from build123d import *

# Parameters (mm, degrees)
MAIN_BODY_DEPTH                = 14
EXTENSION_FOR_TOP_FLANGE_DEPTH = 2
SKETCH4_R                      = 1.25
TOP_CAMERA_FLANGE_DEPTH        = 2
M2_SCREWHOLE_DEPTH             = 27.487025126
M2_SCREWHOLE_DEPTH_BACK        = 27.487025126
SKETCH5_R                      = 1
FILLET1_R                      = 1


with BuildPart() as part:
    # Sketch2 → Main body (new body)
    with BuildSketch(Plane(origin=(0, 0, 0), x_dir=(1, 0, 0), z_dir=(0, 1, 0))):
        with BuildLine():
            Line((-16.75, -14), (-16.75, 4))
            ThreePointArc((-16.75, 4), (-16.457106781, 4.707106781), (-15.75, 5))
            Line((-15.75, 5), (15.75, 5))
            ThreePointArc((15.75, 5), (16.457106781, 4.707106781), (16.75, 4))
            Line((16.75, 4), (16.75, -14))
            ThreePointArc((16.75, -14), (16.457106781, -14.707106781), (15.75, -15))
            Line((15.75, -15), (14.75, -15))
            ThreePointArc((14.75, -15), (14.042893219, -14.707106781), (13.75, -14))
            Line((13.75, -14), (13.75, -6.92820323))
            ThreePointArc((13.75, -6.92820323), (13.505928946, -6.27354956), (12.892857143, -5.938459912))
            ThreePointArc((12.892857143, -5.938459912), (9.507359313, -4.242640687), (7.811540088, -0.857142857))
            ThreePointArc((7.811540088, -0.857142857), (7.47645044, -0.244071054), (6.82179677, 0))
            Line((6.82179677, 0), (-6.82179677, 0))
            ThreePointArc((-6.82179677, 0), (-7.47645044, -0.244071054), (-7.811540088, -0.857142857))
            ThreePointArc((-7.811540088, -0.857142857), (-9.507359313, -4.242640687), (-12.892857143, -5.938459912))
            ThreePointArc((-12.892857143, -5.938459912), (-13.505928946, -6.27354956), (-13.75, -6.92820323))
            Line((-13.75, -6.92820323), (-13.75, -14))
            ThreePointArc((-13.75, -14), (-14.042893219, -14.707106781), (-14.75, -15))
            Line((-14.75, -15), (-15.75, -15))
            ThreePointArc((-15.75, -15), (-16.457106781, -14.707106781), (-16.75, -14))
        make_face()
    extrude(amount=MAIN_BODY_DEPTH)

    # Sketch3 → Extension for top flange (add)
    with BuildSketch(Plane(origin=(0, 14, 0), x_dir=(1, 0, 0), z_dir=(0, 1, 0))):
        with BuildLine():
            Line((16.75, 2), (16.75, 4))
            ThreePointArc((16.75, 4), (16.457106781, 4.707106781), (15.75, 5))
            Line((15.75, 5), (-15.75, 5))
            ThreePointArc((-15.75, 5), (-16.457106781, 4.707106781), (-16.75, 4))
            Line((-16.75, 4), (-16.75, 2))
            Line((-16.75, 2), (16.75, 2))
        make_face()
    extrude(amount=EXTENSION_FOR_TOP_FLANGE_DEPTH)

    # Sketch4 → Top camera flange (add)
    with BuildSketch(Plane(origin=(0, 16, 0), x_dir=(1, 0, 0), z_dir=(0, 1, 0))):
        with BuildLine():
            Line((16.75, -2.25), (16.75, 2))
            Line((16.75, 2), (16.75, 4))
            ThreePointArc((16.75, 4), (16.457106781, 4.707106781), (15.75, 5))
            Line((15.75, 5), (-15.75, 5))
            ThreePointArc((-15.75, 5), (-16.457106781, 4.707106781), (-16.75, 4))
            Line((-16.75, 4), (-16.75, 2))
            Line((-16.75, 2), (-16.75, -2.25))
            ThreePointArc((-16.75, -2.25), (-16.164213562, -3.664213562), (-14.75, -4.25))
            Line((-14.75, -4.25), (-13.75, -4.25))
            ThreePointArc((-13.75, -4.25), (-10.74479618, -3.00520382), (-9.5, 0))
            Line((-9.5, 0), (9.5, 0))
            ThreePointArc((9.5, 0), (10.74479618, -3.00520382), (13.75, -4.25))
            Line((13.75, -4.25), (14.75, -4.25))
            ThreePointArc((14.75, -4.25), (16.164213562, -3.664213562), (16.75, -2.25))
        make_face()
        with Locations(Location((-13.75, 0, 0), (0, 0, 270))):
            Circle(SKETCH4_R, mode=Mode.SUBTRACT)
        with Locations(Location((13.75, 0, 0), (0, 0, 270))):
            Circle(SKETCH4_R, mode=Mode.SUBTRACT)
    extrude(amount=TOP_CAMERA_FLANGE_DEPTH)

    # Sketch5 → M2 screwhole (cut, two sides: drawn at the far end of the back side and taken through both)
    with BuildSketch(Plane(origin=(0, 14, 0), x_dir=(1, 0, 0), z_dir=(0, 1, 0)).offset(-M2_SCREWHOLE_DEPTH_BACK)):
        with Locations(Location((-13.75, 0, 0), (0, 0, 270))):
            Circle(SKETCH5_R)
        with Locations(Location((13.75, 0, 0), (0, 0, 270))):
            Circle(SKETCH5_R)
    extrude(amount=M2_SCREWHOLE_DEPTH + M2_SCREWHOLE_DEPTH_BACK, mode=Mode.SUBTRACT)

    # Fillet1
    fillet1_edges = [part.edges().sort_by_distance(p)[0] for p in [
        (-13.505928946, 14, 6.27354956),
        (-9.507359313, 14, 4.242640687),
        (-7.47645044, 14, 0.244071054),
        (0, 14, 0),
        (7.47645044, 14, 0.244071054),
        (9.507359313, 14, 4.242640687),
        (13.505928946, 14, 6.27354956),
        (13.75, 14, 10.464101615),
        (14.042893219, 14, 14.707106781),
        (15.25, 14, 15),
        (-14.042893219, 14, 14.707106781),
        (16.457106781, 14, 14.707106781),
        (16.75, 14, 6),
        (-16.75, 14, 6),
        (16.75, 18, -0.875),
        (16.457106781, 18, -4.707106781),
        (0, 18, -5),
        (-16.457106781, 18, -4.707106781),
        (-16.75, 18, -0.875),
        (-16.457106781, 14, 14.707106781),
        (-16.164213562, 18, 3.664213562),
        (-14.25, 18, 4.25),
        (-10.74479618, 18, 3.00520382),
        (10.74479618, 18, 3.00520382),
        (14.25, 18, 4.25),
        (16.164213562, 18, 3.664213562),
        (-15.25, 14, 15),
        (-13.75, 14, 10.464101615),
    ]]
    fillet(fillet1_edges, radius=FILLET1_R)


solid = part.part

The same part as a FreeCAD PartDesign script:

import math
import FreeCAD as App
import Part
import Sketcher

V = App.Vector
Q = App.Units.Quantity


def edges_at(feature, points):
    """Names of the edges that pass closest to the given points."""
    edges = feature.Shape.Edges
    near = lambda p: min(range(len(edges)), key=lambda i: edges[i].distToShape(Part.Vertex(*p))[0])
    return sorted({f"Edge{near(p) + 1}" for p in points})

doc = App.newDocument("Part")
body = doc.addObject("PartDesign::Body", "Body")

sketch1 = body.newObject("Sketcher::SketchObject", "Sketch")
sketch1.AttachmentSupport = (doc.getObject("XZ_Plane"), [""])
sketch1.MapMode = "FlatFace"
sketch1.addGeometry(Part.LineSegment(V(-16.8, -4, 0), V(-16.8, 14, 0)), False)
sketch1.addGeometry(Part.ArcOfCircle(Part.Circle(V(-15.7, 14, 0), V(0, 0, 1), 1), math.radians(90), math.radians(180)), False)
sketch1.addGeometry(Part.LineSegment(V(-15.8, 15, 0), V(-14.8, 15, 0)), False)
sketch1.addGeometry(Part.ArcOfCircle(Part.Circle(V(-14.8, 14, 0), V(0, 0, 1), 1), math.radians(0), math.radians(90)), False)
sketch1.addGeometry(Part.LineSegment(V(-13.8, 14, 0), V(-13.8, 6.9, 0)), False)
sketch1.addGeometry(Part.ArcOfCircle(Part.Circle(V(-12.8, 6.9, 0), V(0, 0, 1), 1), math.radians(-180), math.radians(-98)), False)
sketch1.addGeometry(Part.ArcOfCircle(Part.Circle(V(-13.8, 0, 0), V(0, 0, 1), 6), math.radians(8), math.radians(82)), False)
sketch1.addGeometry(Part.ArcOfCircle(Part.Circle(V(-6.8, 1, 0), V(0, 0, 1), 1), math.radians(-172), math.radians(-90)), False)
sketch1.addGeometry(Part.LineSegment(V(-6.8, 0, 0), V(6.8, 0, 0)), False)
sketch1.addGeometry(Part.ArcOfCircle(Part.Circle(V(6.8, 1, 0), V(0, 0, 1), 1), math.radians(-90), math.radians(-8)), False)
sketch1.addGeometry(Part.ArcOfCircle(Part.Circle(V(13.8, 0, 0), V(0, 0, 1), 6), math.radians(98), math.radians(172)), False)
sketch1.addGeometry(Part.ArcOfCircle(Part.Circle(V(12.8, 6.9, 0), V(0, 0, 1), 1), math.radians(-82), math.radians(0)), False)
sketch1.addGeometry(Part.LineSegment(V(13.8, 6.9, 0), V(13.8, 14, 0)), False)
sketch1.addGeometry(Part.ArcOfCircle(Part.Circle(V(14.8, 14, 0), V(0, 0, 1), 1), math.radians(90), math.radians(180)), False)
sketch1.addGeometry(Part.LineSegment(V(14.8, 15, 0), V(15.8, 15, 0)), False)
sketch1.addGeometry(Part.ArcOfCircle(Part.Circle(V(15.7, 14, 0), V(0, 0, 1), 1), math.radians(0), math.radians(90)), False)
sketch1.addGeometry(Part.LineSegment(V(16.8, 14, 0), V(16.8, -4, 0)), False)
sketch1.addGeometry(Part.ArcOfCircle(Part.Circle(V(15.7, -4, 0), V(0, 0, 1), 1), math.radians(-90), math.radians(0)), False)
sketch1.addGeometry(Part.LineSegment(V(15.8, -5, 0), V(-15.8, -5, 0)), False)
sketch1.addGeometry(Part.ArcOfCircle(Part.Circle(V(-15.7, -4, 0), V(0, 0, 1), 1), math.radians(-180), math.radians(-90)), False)
sketch1.addConstraint(Sketcher.Constraint("Tangent", 0, 2, 1, 2))
sketch1.addConstraint(Sketcher.Constraint("Tangent", 1, 1, 2, 1))
sketch1.addConstraint(Sketcher.Constraint("Tangent", 2, 2, 3, 2))
sketch1.addConstraint(Sketcher.Constraint("Tangent", 3, 1, 4, 1))
sketch1.addConstraint(Sketcher.Constraint("Tangent", 4, 2, 5, 1))
sketch1.addConstraint(Sketcher.Constraint("Tangent", 5, 2, 6, 2))
sketch1.addConstraint(Sketcher.Constraint("Tangent", 6, 1, 7, 1))
sketch1.addConstraint(Sketcher.Constraint("Tangent", 7, 2, 8, 1))
sketch1.addConstraint(Sketcher.Constraint("Tangent", 8, 2, 9, 1))
sketch1.addConstraint(Sketcher.Constraint("Tangent", 9, 2, 10, 2))
sketch1.addConstraint(Sketcher.Constraint("Tangent", 10, 1, 11, 1))
sketch1.addConstraint(Sketcher.Constraint("Tangent", 11, 2, 12, 1))
sketch1.addConstraint(Sketcher.Constraint("Tangent", 12, 2, 13, 2))
sketch1.addConstraint(Sketcher.Constraint("Tangent", 13, 1, 14, 1))
sketch1.addConstraint(Sketcher.Constraint("Tangent", 14, 2, 15, 2))
sketch1.addConstraint(Sketcher.Constraint("Tangent", 15, 1, 16, 1))
sketch1.addConstraint(Sketcher.Constraint("Tangent", 16, 2, 17, 2))
sketch1.addConstraint(Sketcher.Constraint("Tangent", 17, 1, 18, 1))
sketch1.addConstraint(Sketcher.Constraint("Tangent", 18, 2, 19, 2))
sketch1.addConstraint(Sketcher.Constraint("Tangent", 19, 1, 0, 1))
sketch1.addConstraint(Sketcher.Constraint("Vertical", 0))
sketch1.addConstraint(Sketcher.Constraint("Horizontal", 2))
sketch1.addConstraint(Sketcher.Constraint("Vertical", 4))
sketch1.addConstraint(Sketcher.Constraint("Horizontal", 8))
sketch1.addConstraint(Sketcher.Constraint("Vertical", 12))
sketch1.addConstraint(Sketcher.Constraint("Horizontal", 14))
sketch1.addConstraint(Sketcher.Constraint("Vertical", 16))
sketch1.addConstraint(Sketcher.Constraint("Horizontal", 18))
sketch1.addConstraint(Sketcher.Constraint("Equal", 1, 3))
sketch1.addConstraint(Sketcher.Constraint("Equal", 3, 5))
sketch1.addConstraint(Sketcher.Constraint("Equal", 5, 7))
sketch1.addConstraint(Sketcher.Constraint("Equal", 7, 9))
sketch1.addConstraint(Sketcher.Constraint("Equal", 6, 10))
sketch1.addConstraint(Sketcher.Constraint("Equal", 9, 11))
sketch1.addConstraint(Sketcher.Constraint("Equal", 11, 13))
sketch1.addConstraint(Sketcher.Constraint("Equal", 13, 15))
sketch1.addConstraint(Sketcher.Constraint("Equal", 15, 17))
sketch1.addConstraint(Sketcher.Constraint("Equal", 17, 19))
sketch1.addConstraint(Sketcher.Constraint("Symmetric", 6, 3, 10, 3, -1, 1))
sketch1.addConstraint(Sketcher.Constraint("Symmetric", 7, 2, 8, 2, -1, 1))
sketch1.addConstraint(Sketcher.Constraint("Symmetric", 3, 3, 13, 3, -2))
sketch1.addConstraint(Sketcher.Constraint("Vertical", 6, 3, 3, 1))
sketch1.addConstraint(Sketcher.Constraint("Equal", 2, 14))
sketch1.addConstraint(Sketcher.Constraint("Radius", 1, Q("1 mm")))
sketch1.addConstraint(Sketcher.Constraint("Radius", 6, Q("6 mm")))
sketch1.addConstraint(Sketcher.Constraint("DistanceX", 2, 1, 2, 2, Q("1 mm")))
sketch1.addConstraint(Sketcher.Constraint("DistanceY", 0, 1, 0, 2, Q("18 mm")))
sketch1.addConstraint(Sketcher.Constraint("DistanceX", 18, 2, 18, 1, Q("31.5 mm")))
sketch1.addConstraint(Sketcher.Constraint("DistanceY", -1, 1, 1, 3, Q("14 mm")))
pad1 = body.newObject("PartDesign::Pad", "Pad")
pad1.Profile = sketch1
pad1.Length = 14
pad1.Reversed = True

sketch2 = body.newObject("Sketcher::SketchObject", "Sketch001")
sketch2.AttachmentSupport = (doc.getObject("XZ_Plane"), [""])
sketch2.MapMode = "FlatFace"
sketch2.AttachmentOffset = App.Placement(V(0, 0, -14), App.Rotation())
sketch2.addGeometry(Part.LineSegment(V(16.8, -2, 0), V(16.8, -4, 0)), False)
sketch2.addGeometry(Part.ArcOfCircle(Part.Circle(V(15.7, -4, 0), V(0, 0, 1), 1), math.radians(-90), math.radians(0)), False)
sketch2.addGeometry(Part.LineSegment(V(15.8, -5, 0), V(-15.8, -5, 0)), False)
sketch2.addGeometry(Part.ArcOfCircle(Part.Circle(V(-15.7, -4, 0), V(0, 0, 1), 1), math.radians(-180), math.radians(-90)), False)
sketch2.addGeometry(Part.LineSegment(V(-16.8, -4, 0), V(-16.8, -2, 0)), False)
sketch2.addGeometry(Part.LineSegment(V(-16.8, -2, 0), V(16.8, -2, 0)), False)
sketch2.addConstraint(Sketcher.Constraint("Tangent", 0, 2, 1, 2))
sketch2.addConstraint(Sketcher.Constraint("Tangent", 1, 1, 2, 1))
sketch2.addConstraint(Sketcher.Constraint("Tangent", 2, 2, 3, 2))
sketch2.addConstraint(Sketcher.Constraint("Tangent", 3, 1, 4, 1))
sketch2.addConstraint(Sketcher.Constraint("Coincident", 4, 2, 5, 1))
sketch2.addConstraint(Sketcher.Constraint("Coincident", 5, 2, 0, 1))
sketch2.addConstraint(Sketcher.Constraint("Vertical", 0))
sketch2.addConstraint(Sketcher.Constraint("Horizontal", 2))
sketch2.addConstraint(Sketcher.Constraint("Vertical", 4))
sketch2.addConstraint(Sketcher.Constraint("Horizontal", 5))
sketch2.addConstraint(Sketcher.Constraint("Equal", 1, 3))
sketch2.addConstraint(Sketcher.Constraint("Radius", 1, Q("1 mm")))
sketch2.addConstraint(Sketcher.Constraint("DistanceY", 0, 2, 0, 1, Q("2 mm")))
sketch2.addConstraint(Sketcher.Constraint("DistanceX", 2, 2, 2, 1, Q("31.5 mm")))
sketch2.addConstraint(Sketcher.Constraint("DistanceY", 1, 3, -1, 1, Q("4 mm")))
sketch2.addConstraint(Sketcher.Constraint("DistanceX", -1, 1, 1, 3, Q("15.75 mm")))
pad2 = body.newObject("PartDesign::Pad", "Pad001")
pad2.Profile = sketch2
pad2.Length = 2
pad2.Reversed = True

sketch3 = body.newObject("Sketcher::SketchObject", "Sketch002")
sketch3.AttachmentSupport = (doc.getObject("XZ_Plane"), [""])
sketch3.MapMode = "FlatFace"
sketch3.AttachmentOffset = App.Placement(V(0, 0, -16), App.Rotation())
sketch3.addGeometry(Part.LineSegment(V(16.8, 2.2, 0), V(16.8, -4, 0)), False)
sketch3.addGeometry(Part.ArcOfCircle(Part.Circle(V(15.7, -4, 0), V(0, 0, 1), 1), math.radians(-90), math.radians(0)), False)
sketch3.addGeometry(Part.LineSegment(V(15.8, -5, 0), V(-15.8, -5, 0)), False)
sketch3.addGeometry(Part.ArcOfCircle(Part.Circle(V(-15.7, -4, 0), V(0, 0, 1), 1), math.radians(-180), math.radians(-90)), False)
sketch3.addGeometry(Part.LineSegment(V(-16.8, -4, 0), V(-16.8, 2.2, 0)), False)
sketch3.addGeometry(Part.ArcOfCircle(Part.Circle(V(-14.7, 2.2, 0), V(0, 0, 1), 2), math.radians(90), math.radians(180)), False)
sketch3.addGeometry(Part.LineSegment(V(-14.8, 4.2, 0), V(-13.8, 4.2, 0)), False)
sketch3.addGeometry(Part.ArcOfCircle(Part.Circle(V(-13.8, 0, 0), V(0, 0, 1), 4.2), math.radians(0), math.radians(90)), False)
sketch3.addGeometry(Part.LineSegment(V(-9.5, 0, 0), V(9.5, 0, 0)), False)
sketch3.addGeometry(Part.ArcOfCircle(Part.Circle(V(13.8, 0, 0), V(0, 0, 1), 4.2), math.radians(90), math.radians(180)), False)
sketch3.addGeometry(Part.LineSegment(V(13.8, 4.2, 0), V(14.8, 4.2, 0)), False)
sketch3.addGeometry(Part.ArcOfCircle(Part.Circle(V(14.7, 2.2, 0), V(0, 0, 1), 2), math.radians(0), math.radians(90)), False)
sketch3.addGeometry(Part.Circle(V(-13.8, 0, 0), V(0, 0, 1), 1.2), False)
sketch3.addGeometry(Part.Circle(V(13.8, 0, 0), V(0, 0, 1), 1.2), False)
sketch3.addConstraint(Sketcher.Constraint("Tangent", 0, 2, 1, 2))
sketch3.addConstraint(Sketcher.Constraint("Tangent", 1, 1, 2, 1))
sketch3.addConstraint(Sketcher.Constraint("Tangent", 2, 2, 3, 2))
sketch3.addConstraint(Sketcher.Constraint("Tangent", 3, 1, 4, 1))
sketch3.addConstraint(Sketcher.Constraint("Tangent", 4, 2, 5, 2))
sketch3.addConstraint(Sketcher.Constraint("Tangent", 5, 1, 6, 1))
sketch3.addConstraint(Sketcher.Constraint("Tangent", 6, 2, 7, 2))
sketch3.addConstraint(Sketcher.Constraint("Coincident", 7, 1, 8, 1))
sketch3.addConstraint(Sketcher.Constraint("Coincident", 8, 2, 9, 2))
sketch3.addConstraint(Sketcher.Constraint("Tangent", 9, 1, 10, 1))
sketch3.addConstraint(Sketcher.Constraint("Tangent", 10, 2, 11, 2))
sketch3.addConstraint(Sketcher.Constraint("Tangent", 11, 1, 0, 1))
sketch3.addConstraint(Sketcher.Constraint("Vertical", 0))
sketch3.addConstraint(Sketcher.Constraint("Horizontal", 2))
sketch3.addConstraint(Sketcher.Constraint("Vertical", 4))
sketch3.addConstraint(Sketcher.Constraint("Horizontal", 6))
sketch3.addConstraint(Sketcher.Constraint("Horizontal", 8))
sketch3.addConstraint(Sketcher.Constraint("Horizontal", 10))
sketch3.addConstraint(Sketcher.Constraint("Coincident", 12, 3, 7, 3))
sketch3.addConstraint(Sketcher.Constraint("Coincident", 13, 3, 9, 3))
sketch3.addConstraint(Sketcher.Constraint("Equal", 1, 3))
sketch3.addConstraint(Sketcher.Constraint("Equal", 7, 9))
sketch3.addConstraint(Sketcher.Constraint("Equal", 5, 11))
sketch3.addConstraint(Sketcher.Constraint("Equal", 12, 13))
sketch3.addConstraint(Sketcher.Constraint("Symmetric", 7, 3, 9, 3, -1, 1))
sketch3.addConstraint(Sketcher.Constraint("Symmetric", 5, 3, 11, 3, -2))
sketch3.addConstraint(Sketcher.Constraint("PointOnObject", 7, 1, -1))
sketch3.addConstraint(Sketcher.Constraint("Radius", 1, Q("1 mm")))
sketch3.addConstraint(Sketcher.Constraint("Radius", 5, Q("2 mm")))
sketch3.addConstraint(Sketcher.Constraint("Diameter", 12, Q("2.5 mm")))
sketch3.addConstraint(Sketcher.Constraint("DistanceX", 6, 1, 6, 2, Q("1 mm")))
sketch3.addConstraint(Sketcher.Constraint("DistanceX", 8, 1, 8, 2, Q("19 mm")))
sketch3.addConstraint(Sketcher.Constraint("Radius", 7, Q("4.25 mm")))
sketch3.addConstraint(Sketcher.Constraint("DistanceY", 1, 3, -1, 1, Q("4 mm")))
pad3 = body.newObject("PartDesign::Pad", "Pad002")
pad3.Profile = sketch3
pad3.Length = 2
pad3.Reversed = True

sketch4 = body.newObject("Sketcher::SketchObject", "Sketch003")
sketch4.AttachmentSupport = (doc.getObject("XZ_Plane"), [""])
sketch4.MapMode = "FlatFace"
sketch4.AttachmentOffset = App.Placement(V(0, 0, -14), App.Rotation())
sketch4.addGeometry(Part.Circle(V(-13.8, 0, 0), V(0, 0, 1), 1), False)
sketch4.addGeometry(Part.Circle(V(13.8, 0, 0), V(0, 0, 1), 1), False)
sketch4.addConstraint(Sketcher.Constraint("Equal", 0, 1))
sketch4.addConstraint(Sketcher.Constraint("Symmetric", 0, 3, 1, 3, -1, 1))
sketch4.addConstraint(Sketcher.Constraint("PointOnObject", 0, 3, -1))
sketch4.addConstraint(Sketcher.Constraint("Diameter", 0, Q("2 mm")))
sketch4.addConstraint(Sketcher.Constraint("DistanceX", 0, 3, 1, 3, Q("27.5 mm")))
pocket1 = body.newObject("PartDesign::Pocket", "Pocket")
pocket1.Profile = sketch4
pocket1.Type = "ThroughAll"
pocket1.Midplane = True
doc.recompute()

fillet = body.newObject("PartDesign::Fillet", "Fillet")
fillet.Base = (pocket1, edges_at(pocket1, [
    (-13.506, 14, 6.274),
    (-9.507, 14, 4.243),
    (-7.476, 14, 0.244),
    (0, 14, 0),
    (7.476, 14, 0.244),
    (9.507, 14, 4.243),
    (13.506, 14, 6.274),
    (13.75, 14, 10.464),
    (14.043, 14, 14.707),
    (15.25, 14, 15),
    (-14.043, 14, 14.707),
    (16.457, 14, 14.707),
    (16.75, 14, 6),
    (-16.75, 14, 6),
    (16.75, 18, -0.875),
    (16.457, 18, -4.707),
    (0, 18, -5),
    (-16.457, 18, -4.707),
    (-16.75, 18, -0.875),
    (-16.457, 14, 14.707),
    (-16.164, 18, 3.664),
    (-14.25, 18, 4.25),
    (-10.745, 18, 3.005),
    (10.745, 18, 3.005),
    (14.25, 18, 4.25),
    (16.164, 18, 3.664),
    (-15.25, 14, 15),
    (-13.75, 14, 10.464),
]))
fillet.Radius = 1

doc.recompute()
